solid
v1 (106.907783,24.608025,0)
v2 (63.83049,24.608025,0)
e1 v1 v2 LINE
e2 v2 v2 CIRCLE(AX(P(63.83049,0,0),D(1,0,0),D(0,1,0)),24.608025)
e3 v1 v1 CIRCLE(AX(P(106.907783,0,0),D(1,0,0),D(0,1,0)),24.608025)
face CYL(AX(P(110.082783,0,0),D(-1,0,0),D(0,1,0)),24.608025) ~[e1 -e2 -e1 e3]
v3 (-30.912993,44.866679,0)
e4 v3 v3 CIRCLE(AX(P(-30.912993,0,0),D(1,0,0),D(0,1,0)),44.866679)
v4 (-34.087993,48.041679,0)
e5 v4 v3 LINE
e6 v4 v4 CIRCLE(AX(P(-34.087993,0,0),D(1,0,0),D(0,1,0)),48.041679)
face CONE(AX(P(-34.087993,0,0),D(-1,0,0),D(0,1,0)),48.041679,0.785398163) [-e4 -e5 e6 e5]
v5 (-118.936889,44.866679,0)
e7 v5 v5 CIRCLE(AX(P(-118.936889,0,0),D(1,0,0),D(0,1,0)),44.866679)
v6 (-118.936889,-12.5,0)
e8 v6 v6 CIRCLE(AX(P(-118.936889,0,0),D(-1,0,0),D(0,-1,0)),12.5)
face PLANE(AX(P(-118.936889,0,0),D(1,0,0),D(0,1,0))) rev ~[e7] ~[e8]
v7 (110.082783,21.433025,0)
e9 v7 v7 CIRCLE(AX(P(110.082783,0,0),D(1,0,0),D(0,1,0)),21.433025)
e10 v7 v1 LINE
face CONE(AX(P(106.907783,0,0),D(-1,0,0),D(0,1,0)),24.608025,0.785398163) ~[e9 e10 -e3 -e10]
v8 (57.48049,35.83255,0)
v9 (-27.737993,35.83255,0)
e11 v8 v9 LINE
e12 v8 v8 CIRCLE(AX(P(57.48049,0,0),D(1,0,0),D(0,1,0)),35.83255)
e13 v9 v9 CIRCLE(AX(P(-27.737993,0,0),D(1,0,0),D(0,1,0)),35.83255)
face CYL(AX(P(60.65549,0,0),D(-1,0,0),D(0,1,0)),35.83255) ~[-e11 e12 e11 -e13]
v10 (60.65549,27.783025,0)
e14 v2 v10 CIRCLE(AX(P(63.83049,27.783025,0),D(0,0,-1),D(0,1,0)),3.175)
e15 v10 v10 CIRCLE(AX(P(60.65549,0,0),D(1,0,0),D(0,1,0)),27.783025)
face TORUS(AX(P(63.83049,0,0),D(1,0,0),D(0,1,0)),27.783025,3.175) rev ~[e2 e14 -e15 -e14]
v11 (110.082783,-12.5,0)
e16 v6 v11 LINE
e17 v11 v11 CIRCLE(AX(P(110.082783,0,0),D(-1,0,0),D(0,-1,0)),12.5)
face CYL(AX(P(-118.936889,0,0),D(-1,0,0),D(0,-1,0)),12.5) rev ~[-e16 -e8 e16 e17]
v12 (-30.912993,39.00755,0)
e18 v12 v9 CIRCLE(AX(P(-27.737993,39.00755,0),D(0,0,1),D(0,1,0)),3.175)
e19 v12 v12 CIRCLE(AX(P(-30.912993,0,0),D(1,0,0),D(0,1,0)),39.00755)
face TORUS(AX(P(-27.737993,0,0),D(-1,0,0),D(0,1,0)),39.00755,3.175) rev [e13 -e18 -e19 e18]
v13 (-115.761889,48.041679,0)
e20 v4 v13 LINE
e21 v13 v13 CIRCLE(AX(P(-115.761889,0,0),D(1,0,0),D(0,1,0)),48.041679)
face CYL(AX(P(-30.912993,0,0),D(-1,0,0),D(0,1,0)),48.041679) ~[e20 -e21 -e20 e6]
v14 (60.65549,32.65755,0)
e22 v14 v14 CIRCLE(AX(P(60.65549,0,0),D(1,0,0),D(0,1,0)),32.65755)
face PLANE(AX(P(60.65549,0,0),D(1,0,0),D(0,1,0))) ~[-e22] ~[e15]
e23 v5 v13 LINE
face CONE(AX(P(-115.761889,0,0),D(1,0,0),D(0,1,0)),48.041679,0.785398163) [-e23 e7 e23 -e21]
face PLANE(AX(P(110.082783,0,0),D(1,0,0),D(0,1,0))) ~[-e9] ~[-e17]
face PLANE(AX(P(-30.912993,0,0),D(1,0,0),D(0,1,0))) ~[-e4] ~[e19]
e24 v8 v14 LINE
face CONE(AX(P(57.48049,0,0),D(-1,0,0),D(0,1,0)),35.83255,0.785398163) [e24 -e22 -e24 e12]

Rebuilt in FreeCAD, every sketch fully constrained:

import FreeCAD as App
import Part
import Sketcher
Q = App.Units.Quantity


def edges_at(feature, points):
    """Names of the edges that pass closest to the given points."""
    edges = feature.Shape.Edges
    near = lambda p: min(range(len(edges)), key=lambda i: edges[i].distToShape(Part.Vertex(*p))[0])
    return sorted({f"Edge{near(p) + 1}" for p in points})


def add_polygon(sketch, points):
    """Adds a closed chain of lines whose ends are joined by coincident constraints."""
    first, n = sketch.GeometryCount, len(points)
    for a, b in zip(points, points[1:] + points[:1]):
        sketch.addGeometry(Part.LineSegment(App.Vector(*a, 0), App.Vector(*b, 0)), False)
    for i in range(n):
        sketch.addConstraint(Sketcher.Constraint("Coincident", first + i, 2, first + (i + 1) % n, 1))

doc = App.newDocument("Part")
body = doc.addObject("PartDesign::Body", "Body")

# Sketch on XY plane
sketch1 = body.newObject("Sketcher::SketchObject", "Sketch")
sketch1.AttachmentSupport = (doc.getObject("XY_Plane"), [""])
sketch1.MapMode = "FlatFace"
add_polygon(sketch1, [(-119, 48), (-119, 0), (110, 0), (110, 25), (61, 25), (61, 36), (-31, 36), (-31, 48)])  # lines 0-7
sketch1.addConstraint([
    Sketcher.Constraint("Vertical", 0),
    Sketcher.Constraint("Horizontal", 1),
    Sketcher.Constraint("Vertical", 2),
    Sketcher.Constraint("Horizontal", 3),
    Sketcher.Constraint("Vertical", 4),
    Sketcher.Constraint("Horizontal", 5),
    Sketcher.Constraint("Vertical", 6),
    Sketcher.Constraint("Horizontal", 7),
    Sketcher.Constraint("PointOnObject", 0, 2, -1),
    Sketcher.Constraint("DistanceY", 0, 2, 0, 1, Q("48.041679 mm")),
    Sketcher.Constraint("DistanceY", 6, 1, 6, 2, Q("12.209129 mm")),
    Sketcher.Constraint("DistanceX", 1, 1, 1, 2, Q("229.019672 mm")),
    Sketcher.Constraint("DistanceX", 3, 2, 3, 1, Q("49.427293 mm")),
    Sketcher.Constraint("DistanceX", 5, 2, 5, 1, Q("91.568483 mm")),
    Sketcher.Constraint("DistanceY", 2, 1, 2, 2, Q("24.608025 mm")),
    Sketcher.Constraint("DistanceX", 0, 2, -1, 1, Q("118.936889 mm")),
])
revolution = body.newObject("PartDesign::Revolution", "Revolution")
revolution.Profile = sketch1
revolution.ReferenceAxis = (sketch1, ["H_Axis"])
revolution.Angle = 360

# Sketch on YZ plane
sketch2 = body.newObject("Sketcher::SketchObject", "Sketch001")
sketch2.AttachmentSupport = (doc.getObject("YZ_Plane"), [""])
sketch2.MapMode = "FlatFace"
sketch2.AttachmentOffset = App.Placement(App.Vector(0, 0, -118.936889), App.Rotation())
sketch2.addGeometry(Part.Circle(App.Vector(0, 0, 0), App.Vector(0, 0, 1), 12), False)
sketch2.addConstraint([
    Sketcher.Constraint("Coincident", 0, 3, -1, 1),
    Sketcher.Constraint("Diameter", 0, Q("25 mm")),
])
pocket1 = body.newObject("PartDesign::Pocket", "Pocket")
pocket1.Profile = sketch2
pocket1.Length = 253.15408
pocket1.Reversed = True
doc.recompute()

chamfer = body.newObject("PartDesign::Chamfer", "Chamfer")
chamfer.Base = (pocket1, edges_at(pocket1, [
    (-118.937, -48.042, 0),
    (-30.913, -48.042, 0),
    (60.655, -35.833, 0),
    (110.083, -24.608, 0),
]))
chamfer.Size = 3.175
doc.recompute()

fillet = body.newObject("PartDesign::Fillet", "Fillet")
fillet.Base = (chamfer, edges_at(chamfer, [(60.655, -24.608, 0), (-30.913, -35.833, 0)]))
fillet.Radius = 3.175

doc.recompute()
